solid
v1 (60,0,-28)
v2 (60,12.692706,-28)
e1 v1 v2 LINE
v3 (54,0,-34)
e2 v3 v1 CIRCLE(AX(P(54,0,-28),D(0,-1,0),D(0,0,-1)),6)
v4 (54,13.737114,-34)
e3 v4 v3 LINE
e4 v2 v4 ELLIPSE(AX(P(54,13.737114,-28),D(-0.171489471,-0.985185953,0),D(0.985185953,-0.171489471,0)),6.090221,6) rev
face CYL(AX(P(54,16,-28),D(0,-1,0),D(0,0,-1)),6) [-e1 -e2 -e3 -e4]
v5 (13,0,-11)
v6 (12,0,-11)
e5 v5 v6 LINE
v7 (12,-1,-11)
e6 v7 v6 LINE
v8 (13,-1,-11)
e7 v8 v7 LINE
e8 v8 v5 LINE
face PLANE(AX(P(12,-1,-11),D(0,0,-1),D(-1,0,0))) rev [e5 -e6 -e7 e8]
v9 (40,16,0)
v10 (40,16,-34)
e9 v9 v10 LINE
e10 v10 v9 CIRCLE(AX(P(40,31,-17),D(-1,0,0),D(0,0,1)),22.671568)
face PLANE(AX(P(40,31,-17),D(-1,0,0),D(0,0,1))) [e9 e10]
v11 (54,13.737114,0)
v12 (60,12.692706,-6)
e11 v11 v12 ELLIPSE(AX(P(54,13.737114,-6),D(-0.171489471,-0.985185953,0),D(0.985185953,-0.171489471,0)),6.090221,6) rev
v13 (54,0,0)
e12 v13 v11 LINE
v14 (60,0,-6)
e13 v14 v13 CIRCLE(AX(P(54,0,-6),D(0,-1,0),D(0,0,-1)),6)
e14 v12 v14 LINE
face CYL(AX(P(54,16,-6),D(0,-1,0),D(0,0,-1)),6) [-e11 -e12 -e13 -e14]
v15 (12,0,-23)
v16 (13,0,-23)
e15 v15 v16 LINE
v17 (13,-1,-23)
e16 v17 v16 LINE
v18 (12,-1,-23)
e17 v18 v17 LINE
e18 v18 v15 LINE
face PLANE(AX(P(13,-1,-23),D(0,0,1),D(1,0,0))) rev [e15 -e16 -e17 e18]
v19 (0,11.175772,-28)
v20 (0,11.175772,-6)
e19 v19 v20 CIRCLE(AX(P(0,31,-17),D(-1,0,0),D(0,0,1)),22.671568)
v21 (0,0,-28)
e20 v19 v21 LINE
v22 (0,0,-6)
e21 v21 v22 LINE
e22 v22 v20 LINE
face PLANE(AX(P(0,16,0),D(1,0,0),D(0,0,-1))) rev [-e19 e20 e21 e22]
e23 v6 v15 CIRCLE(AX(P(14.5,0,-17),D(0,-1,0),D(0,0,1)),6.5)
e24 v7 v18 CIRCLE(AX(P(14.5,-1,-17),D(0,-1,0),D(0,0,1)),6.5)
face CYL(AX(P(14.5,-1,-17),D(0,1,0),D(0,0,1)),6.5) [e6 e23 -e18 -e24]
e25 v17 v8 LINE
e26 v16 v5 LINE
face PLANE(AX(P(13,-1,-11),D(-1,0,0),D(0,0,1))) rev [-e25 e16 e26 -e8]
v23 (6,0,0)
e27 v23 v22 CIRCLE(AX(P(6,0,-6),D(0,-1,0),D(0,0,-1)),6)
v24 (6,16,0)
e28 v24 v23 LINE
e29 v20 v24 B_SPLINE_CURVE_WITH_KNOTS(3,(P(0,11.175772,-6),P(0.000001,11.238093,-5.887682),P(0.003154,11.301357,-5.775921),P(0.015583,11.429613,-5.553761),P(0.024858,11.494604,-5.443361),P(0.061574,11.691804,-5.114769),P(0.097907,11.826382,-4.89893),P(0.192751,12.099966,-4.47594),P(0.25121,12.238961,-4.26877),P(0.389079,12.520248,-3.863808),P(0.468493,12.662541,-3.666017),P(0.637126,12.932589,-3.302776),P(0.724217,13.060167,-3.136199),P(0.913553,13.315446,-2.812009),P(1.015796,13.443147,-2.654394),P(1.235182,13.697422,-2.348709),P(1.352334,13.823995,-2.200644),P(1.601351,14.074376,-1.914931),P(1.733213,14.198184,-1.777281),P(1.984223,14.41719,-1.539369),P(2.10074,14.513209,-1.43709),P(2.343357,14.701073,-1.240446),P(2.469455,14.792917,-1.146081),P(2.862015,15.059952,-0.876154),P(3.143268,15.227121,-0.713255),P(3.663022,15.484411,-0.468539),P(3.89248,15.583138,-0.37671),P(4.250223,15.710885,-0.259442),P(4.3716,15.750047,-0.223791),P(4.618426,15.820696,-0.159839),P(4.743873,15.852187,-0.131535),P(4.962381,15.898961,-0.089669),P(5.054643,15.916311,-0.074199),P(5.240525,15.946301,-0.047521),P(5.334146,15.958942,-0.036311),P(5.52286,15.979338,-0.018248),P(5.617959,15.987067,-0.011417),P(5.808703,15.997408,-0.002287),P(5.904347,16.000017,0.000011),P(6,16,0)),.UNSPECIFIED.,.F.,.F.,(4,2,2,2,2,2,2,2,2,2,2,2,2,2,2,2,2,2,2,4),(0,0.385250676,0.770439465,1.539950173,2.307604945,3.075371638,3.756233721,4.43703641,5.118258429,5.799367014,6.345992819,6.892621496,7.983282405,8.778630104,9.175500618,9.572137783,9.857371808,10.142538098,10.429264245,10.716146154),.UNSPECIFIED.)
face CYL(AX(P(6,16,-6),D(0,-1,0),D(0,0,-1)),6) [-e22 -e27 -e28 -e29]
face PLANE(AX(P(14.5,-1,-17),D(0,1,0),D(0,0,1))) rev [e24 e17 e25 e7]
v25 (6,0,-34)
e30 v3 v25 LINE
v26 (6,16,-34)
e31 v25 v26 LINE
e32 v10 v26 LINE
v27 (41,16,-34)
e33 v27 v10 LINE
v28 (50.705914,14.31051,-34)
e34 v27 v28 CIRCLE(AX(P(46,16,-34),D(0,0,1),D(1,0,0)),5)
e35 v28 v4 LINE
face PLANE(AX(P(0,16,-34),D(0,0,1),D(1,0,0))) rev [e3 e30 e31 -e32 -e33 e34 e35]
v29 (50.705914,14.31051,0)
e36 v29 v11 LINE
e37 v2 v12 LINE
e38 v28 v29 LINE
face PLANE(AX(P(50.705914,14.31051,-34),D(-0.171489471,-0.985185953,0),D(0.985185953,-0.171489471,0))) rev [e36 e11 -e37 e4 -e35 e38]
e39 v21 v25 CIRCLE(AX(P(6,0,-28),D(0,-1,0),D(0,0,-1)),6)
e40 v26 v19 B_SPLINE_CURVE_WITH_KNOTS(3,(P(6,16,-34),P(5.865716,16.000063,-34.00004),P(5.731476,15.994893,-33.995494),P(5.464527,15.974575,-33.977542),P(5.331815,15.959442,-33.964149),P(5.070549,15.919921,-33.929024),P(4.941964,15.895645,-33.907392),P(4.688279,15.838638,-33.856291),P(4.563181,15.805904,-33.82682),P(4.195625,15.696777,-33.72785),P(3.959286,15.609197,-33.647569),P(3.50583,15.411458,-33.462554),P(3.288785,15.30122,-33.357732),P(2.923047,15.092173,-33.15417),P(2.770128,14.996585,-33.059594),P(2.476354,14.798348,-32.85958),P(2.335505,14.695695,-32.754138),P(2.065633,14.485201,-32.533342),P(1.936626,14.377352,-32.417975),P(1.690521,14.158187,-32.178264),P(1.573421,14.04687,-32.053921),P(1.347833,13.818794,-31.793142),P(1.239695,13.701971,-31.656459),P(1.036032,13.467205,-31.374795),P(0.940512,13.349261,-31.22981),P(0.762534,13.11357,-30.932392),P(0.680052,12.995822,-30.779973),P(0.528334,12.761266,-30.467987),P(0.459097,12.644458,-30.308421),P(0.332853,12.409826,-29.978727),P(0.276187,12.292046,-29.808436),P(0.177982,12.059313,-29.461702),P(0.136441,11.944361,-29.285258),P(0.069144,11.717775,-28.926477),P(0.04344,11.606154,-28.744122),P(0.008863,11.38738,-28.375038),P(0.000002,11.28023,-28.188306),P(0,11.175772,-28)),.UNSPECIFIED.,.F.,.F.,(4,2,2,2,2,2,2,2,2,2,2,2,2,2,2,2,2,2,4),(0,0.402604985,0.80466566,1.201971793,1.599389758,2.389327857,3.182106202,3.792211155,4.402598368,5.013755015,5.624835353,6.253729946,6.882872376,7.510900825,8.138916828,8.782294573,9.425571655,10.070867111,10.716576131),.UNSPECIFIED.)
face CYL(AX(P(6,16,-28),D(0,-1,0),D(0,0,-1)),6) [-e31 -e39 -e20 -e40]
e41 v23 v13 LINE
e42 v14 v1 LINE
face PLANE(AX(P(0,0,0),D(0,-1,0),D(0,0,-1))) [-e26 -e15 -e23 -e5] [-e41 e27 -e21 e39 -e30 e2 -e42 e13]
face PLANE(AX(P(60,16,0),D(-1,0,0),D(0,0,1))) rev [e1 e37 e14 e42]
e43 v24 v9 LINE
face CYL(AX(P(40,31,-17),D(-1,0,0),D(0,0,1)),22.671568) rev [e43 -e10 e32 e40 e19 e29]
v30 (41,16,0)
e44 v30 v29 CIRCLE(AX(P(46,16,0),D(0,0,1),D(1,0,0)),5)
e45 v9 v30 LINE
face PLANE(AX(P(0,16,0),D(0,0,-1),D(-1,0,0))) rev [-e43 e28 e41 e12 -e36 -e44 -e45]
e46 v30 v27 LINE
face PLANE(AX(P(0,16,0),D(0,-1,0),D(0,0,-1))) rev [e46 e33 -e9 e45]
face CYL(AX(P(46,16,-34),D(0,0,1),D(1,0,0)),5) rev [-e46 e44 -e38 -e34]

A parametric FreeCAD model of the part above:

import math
import FreeCAD as App
import Part
import Sketcher

V = App.Vector


def edges_at(feature, points):
    """Names of the edges that pass closest to the given points."""
    edges = feature.Shape.Edges
    near = lambda p: min(range(len(edges)), key=lambda i: edges[i].distToShape(Part.Vertex(*p))[0])
    return sorted({f"Edge{near(p) + 1}" for p in points})


def add_polygon(sketch, points):
    """Adds a closed chain of lines whose ends are joined by coincident constraints."""
    first, n = sketch.GeometryCount, len(points)
    for a, b in zip(points, points[1:] + points[:1]):
        sketch.addGeometry(Part.LineSegment(App.Vector(*a, 0), App.Vector(*b, 0)), False)
    for i in range(n):
        sketch.addConstraint(Sketcher.Constraint("Coincident", first + i, 2, first + (i + 1) % n, 1))

doc = App.newDocument("Part")
body = doc.addObject("PartDesign::Body", "Body")

# Sketch on XZ plane
sketch1 = body.newObject("Sketcher::SketchObject", "Sketch")
sketch1.AttachmentSupport = (doc.getObject("XZ_Plane"), [""])
sketch1.MapMode = "FlatFace"
add_polygon(sketch1, [(0, -34), (0, 0), (60, 0), (60, -34)])  # lines 0-3
sketch1.addConstraint(Sketcher.Constraint("Vertical", 0))
sketch1.addConstraint(Sketcher.Constraint("Horizontal", 1))
sketch1.addConstraint(Sketcher.Constraint("Vertical", 2))
sketch1.addConstraint(Sketcher.Constraint("Horizontal", 3))
sketch1.addConstraint(Sketcher.Constraint("Coincident", 0, 2, -1, 1))
sketch1.addConstraint(Sketcher.Constraint("DistanceX", 1, 1, 1, 2, 60.0))
sketch1.addConstraint(Sketcher.Constraint("DistanceY", 0, 1, 0, 2, 34.0))
pad1 = body.newObject("PartDesign::Pad", "Pad")
pad1.Profile = sketch1
pad1.Length = 16
pad1.Reversed = True

# Sketch on YZ plane
sketch2 = body.newObject("Sketcher::SketchObject", "Sketch001")
sketch2.AttachmentSupport = (doc.getObject("YZ_Plane"), [""])
sketch2.MapMode = "FlatFace"
sketch2.addGeometry(Part.Circle(V(31, -17, 0), V(0, 0, 1), 23), False)
sketch2.addConstraint(Sketcher.Constraint("DistanceX", -1, 1, 0, 3, 31.0))
sketch2.addConstraint(Sketcher.Constraint("DistanceY", 0, 3, -1, 1, 17.0))
sketch2.addConstraint(Sketcher.Constraint("Diameter", 0, 45.343136))
pocket1 = body.newObject("PartDesign::Pocket", "Pocket")
pocket1.Profile = sketch2
pocket1.Length = 40
pocket1.Reversed = True

# Sketch on XY plane
sketch3 = body.newObject("Sketcher::SketchObject", "Sketch002")
sketch3.AttachmentSupport = (doc.getObject("XY_Plane"), [""])
sketch3.MapMode = "FlatFace"
sketch3.addGeometry(Part.Circle(V(46, 16, 0), V(0, 0, 1), 5), False)
sketch3.addConstraint(Sketcher.Constraint("Diameter", 0, 10.0))
sketch3.addConstraint(Sketcher.Constraint("DistanceX", -1, 1, 0, 3, 46.0))
sketch3.addConstraint(Sketcher.Constraint("DistanceY", -1, 1, 0, 3, 16.0))
pocket2 = body.newObject("PartDesign::Pocket", "Pocket001")
pocket2.Profile = sketch3
pocket2.Type = "ThroughAll"
doc.recompute()

fillet = body.newObject("PartDesign::Fillet", "Fillet")
fillet.Base = (pocket2, edges_at(pocket2, [
    (0, 8, -34),
    (60, 8, -34),
    (60, 8, 0),
    (0, 8, 0),
]))
fillet.Radius = 6

# Sketch on XY plane
sketch4 = body.newObject("Sketcher::SketchObject", "Sketch003")
sketch4.AttachmentSupport = (doc.getObject("XY_Plane"), [""])
sketch4.MapMode = "FlatFace"
add_polygon(sketch4, [(50.7, 14.3), (60, 12.7), (60, 16), (51, 16)])  # lines 0-3
sketch4.addConstraint(Sketcher.Constraint("Vertical", 1))
sketch4.addConstraint(Sketcher.Constraint("Horizontal", 2))
sketch4.addConstraint(Sketcher.Constraint("Perpendicular", 0, 3))
sketch4.addConstraint(Sketcher.Constraint("DistanceX", 2, 2, 2, 1, 9.0))
sketch4.addConstraint(Sketcher.Constraint("DistanceX", -1, 1, 0, 2, 60.0))
sketch4.addConstraint(Sketcher.Constraint("DistanceY", -1, 1, 1, 2, 16.0))
sketch4.addConstraint(Sketcher.Constraint("Distance", 0, 9.43384))
sketch4.addConstraint(Sketcher.Constraint("DistanceY", 1, 1, 1, 2, 3.307294))
pocket3 = body.newObject("PartDesign::Pocket", "Pocket002")
pocket3.Profile = sketch4
pocket3.Type = "ThroughAll"

# Sketch on XZ plane
sketch5 = body.newObject("Sketcher::SketchObject", "Sketch004")
sketch5.AttachmentSupport = (doc.getObject("XZ_Plane"), [""])
sketch5.MapMode = "FlatFace"
sketch5.addGeometry(Part.LineSegment(V(13, -23, 0), V(13, -11, 0)), False)
sketch5.addGeometry(Part.LineSegment(V(13, -11, 0), V(12, -11, 0)), False)
sketch5.addGeometry(Part.ArcOfCircle(Part.Circle(V(14.5, -17, 0), V(0, 0, 1), 6.5), math.radians(113), math.radians(247)), False)
sketch5.addGeometry(Part.LineSegment(V(12, -23, 0), V(13, -23, 0)), False)
sketch5.addConstraint(Sketcher.Constraint("Coincident", 0, 2, 1, 1))
sketch5.addConstraint(Sketcher.Constraint("Coincident", 1, 2, 2, 1))
sketch5.addConstraint(Sketcher.Constraint("Coincident", 2, 2, 3, 1))
sketch5.addConstraint(Sketcher.Constraint("Coincident", 3, 2, 0, 1))
sketch5.addConstraint(Sketcher.Constraint("Vertical", 0))
sketch5.addConstraint(Sketcher.Constraint("Horizontal", 1))
sketch5.addConstraint(Sketcher.Constraint("Horizontal", 3))
sketch5.addConstraint(Sketcher.Constraint("Vertical", 1, 2, 2, 2))
sketch5.addConstraint(Sketcher.Constraint("Radius", 2, 6.5))
sketch5.addConstraint(Sketcher.Constraint("DistanceX", 1, 2, 1, 1, 1.0))
sketch5.addConstraint(Sketcher.Constraint("DistanceY", 0, 1, 0, 2, 12.0))
sketch5.addConstraint(Sketcher.Constraint("DistanceY", 2, 3, -1, 1, 17.0))
sketch5.addConstraint(Sketcher.Constraint("DistanceX", -1, 1, 0, 2, 13.0))
pad2 = body.newObject("PartDesign::Pad", "Pad001")
pad2.Profile = sketch5
pad2.Length = 1

doc.recompute()
